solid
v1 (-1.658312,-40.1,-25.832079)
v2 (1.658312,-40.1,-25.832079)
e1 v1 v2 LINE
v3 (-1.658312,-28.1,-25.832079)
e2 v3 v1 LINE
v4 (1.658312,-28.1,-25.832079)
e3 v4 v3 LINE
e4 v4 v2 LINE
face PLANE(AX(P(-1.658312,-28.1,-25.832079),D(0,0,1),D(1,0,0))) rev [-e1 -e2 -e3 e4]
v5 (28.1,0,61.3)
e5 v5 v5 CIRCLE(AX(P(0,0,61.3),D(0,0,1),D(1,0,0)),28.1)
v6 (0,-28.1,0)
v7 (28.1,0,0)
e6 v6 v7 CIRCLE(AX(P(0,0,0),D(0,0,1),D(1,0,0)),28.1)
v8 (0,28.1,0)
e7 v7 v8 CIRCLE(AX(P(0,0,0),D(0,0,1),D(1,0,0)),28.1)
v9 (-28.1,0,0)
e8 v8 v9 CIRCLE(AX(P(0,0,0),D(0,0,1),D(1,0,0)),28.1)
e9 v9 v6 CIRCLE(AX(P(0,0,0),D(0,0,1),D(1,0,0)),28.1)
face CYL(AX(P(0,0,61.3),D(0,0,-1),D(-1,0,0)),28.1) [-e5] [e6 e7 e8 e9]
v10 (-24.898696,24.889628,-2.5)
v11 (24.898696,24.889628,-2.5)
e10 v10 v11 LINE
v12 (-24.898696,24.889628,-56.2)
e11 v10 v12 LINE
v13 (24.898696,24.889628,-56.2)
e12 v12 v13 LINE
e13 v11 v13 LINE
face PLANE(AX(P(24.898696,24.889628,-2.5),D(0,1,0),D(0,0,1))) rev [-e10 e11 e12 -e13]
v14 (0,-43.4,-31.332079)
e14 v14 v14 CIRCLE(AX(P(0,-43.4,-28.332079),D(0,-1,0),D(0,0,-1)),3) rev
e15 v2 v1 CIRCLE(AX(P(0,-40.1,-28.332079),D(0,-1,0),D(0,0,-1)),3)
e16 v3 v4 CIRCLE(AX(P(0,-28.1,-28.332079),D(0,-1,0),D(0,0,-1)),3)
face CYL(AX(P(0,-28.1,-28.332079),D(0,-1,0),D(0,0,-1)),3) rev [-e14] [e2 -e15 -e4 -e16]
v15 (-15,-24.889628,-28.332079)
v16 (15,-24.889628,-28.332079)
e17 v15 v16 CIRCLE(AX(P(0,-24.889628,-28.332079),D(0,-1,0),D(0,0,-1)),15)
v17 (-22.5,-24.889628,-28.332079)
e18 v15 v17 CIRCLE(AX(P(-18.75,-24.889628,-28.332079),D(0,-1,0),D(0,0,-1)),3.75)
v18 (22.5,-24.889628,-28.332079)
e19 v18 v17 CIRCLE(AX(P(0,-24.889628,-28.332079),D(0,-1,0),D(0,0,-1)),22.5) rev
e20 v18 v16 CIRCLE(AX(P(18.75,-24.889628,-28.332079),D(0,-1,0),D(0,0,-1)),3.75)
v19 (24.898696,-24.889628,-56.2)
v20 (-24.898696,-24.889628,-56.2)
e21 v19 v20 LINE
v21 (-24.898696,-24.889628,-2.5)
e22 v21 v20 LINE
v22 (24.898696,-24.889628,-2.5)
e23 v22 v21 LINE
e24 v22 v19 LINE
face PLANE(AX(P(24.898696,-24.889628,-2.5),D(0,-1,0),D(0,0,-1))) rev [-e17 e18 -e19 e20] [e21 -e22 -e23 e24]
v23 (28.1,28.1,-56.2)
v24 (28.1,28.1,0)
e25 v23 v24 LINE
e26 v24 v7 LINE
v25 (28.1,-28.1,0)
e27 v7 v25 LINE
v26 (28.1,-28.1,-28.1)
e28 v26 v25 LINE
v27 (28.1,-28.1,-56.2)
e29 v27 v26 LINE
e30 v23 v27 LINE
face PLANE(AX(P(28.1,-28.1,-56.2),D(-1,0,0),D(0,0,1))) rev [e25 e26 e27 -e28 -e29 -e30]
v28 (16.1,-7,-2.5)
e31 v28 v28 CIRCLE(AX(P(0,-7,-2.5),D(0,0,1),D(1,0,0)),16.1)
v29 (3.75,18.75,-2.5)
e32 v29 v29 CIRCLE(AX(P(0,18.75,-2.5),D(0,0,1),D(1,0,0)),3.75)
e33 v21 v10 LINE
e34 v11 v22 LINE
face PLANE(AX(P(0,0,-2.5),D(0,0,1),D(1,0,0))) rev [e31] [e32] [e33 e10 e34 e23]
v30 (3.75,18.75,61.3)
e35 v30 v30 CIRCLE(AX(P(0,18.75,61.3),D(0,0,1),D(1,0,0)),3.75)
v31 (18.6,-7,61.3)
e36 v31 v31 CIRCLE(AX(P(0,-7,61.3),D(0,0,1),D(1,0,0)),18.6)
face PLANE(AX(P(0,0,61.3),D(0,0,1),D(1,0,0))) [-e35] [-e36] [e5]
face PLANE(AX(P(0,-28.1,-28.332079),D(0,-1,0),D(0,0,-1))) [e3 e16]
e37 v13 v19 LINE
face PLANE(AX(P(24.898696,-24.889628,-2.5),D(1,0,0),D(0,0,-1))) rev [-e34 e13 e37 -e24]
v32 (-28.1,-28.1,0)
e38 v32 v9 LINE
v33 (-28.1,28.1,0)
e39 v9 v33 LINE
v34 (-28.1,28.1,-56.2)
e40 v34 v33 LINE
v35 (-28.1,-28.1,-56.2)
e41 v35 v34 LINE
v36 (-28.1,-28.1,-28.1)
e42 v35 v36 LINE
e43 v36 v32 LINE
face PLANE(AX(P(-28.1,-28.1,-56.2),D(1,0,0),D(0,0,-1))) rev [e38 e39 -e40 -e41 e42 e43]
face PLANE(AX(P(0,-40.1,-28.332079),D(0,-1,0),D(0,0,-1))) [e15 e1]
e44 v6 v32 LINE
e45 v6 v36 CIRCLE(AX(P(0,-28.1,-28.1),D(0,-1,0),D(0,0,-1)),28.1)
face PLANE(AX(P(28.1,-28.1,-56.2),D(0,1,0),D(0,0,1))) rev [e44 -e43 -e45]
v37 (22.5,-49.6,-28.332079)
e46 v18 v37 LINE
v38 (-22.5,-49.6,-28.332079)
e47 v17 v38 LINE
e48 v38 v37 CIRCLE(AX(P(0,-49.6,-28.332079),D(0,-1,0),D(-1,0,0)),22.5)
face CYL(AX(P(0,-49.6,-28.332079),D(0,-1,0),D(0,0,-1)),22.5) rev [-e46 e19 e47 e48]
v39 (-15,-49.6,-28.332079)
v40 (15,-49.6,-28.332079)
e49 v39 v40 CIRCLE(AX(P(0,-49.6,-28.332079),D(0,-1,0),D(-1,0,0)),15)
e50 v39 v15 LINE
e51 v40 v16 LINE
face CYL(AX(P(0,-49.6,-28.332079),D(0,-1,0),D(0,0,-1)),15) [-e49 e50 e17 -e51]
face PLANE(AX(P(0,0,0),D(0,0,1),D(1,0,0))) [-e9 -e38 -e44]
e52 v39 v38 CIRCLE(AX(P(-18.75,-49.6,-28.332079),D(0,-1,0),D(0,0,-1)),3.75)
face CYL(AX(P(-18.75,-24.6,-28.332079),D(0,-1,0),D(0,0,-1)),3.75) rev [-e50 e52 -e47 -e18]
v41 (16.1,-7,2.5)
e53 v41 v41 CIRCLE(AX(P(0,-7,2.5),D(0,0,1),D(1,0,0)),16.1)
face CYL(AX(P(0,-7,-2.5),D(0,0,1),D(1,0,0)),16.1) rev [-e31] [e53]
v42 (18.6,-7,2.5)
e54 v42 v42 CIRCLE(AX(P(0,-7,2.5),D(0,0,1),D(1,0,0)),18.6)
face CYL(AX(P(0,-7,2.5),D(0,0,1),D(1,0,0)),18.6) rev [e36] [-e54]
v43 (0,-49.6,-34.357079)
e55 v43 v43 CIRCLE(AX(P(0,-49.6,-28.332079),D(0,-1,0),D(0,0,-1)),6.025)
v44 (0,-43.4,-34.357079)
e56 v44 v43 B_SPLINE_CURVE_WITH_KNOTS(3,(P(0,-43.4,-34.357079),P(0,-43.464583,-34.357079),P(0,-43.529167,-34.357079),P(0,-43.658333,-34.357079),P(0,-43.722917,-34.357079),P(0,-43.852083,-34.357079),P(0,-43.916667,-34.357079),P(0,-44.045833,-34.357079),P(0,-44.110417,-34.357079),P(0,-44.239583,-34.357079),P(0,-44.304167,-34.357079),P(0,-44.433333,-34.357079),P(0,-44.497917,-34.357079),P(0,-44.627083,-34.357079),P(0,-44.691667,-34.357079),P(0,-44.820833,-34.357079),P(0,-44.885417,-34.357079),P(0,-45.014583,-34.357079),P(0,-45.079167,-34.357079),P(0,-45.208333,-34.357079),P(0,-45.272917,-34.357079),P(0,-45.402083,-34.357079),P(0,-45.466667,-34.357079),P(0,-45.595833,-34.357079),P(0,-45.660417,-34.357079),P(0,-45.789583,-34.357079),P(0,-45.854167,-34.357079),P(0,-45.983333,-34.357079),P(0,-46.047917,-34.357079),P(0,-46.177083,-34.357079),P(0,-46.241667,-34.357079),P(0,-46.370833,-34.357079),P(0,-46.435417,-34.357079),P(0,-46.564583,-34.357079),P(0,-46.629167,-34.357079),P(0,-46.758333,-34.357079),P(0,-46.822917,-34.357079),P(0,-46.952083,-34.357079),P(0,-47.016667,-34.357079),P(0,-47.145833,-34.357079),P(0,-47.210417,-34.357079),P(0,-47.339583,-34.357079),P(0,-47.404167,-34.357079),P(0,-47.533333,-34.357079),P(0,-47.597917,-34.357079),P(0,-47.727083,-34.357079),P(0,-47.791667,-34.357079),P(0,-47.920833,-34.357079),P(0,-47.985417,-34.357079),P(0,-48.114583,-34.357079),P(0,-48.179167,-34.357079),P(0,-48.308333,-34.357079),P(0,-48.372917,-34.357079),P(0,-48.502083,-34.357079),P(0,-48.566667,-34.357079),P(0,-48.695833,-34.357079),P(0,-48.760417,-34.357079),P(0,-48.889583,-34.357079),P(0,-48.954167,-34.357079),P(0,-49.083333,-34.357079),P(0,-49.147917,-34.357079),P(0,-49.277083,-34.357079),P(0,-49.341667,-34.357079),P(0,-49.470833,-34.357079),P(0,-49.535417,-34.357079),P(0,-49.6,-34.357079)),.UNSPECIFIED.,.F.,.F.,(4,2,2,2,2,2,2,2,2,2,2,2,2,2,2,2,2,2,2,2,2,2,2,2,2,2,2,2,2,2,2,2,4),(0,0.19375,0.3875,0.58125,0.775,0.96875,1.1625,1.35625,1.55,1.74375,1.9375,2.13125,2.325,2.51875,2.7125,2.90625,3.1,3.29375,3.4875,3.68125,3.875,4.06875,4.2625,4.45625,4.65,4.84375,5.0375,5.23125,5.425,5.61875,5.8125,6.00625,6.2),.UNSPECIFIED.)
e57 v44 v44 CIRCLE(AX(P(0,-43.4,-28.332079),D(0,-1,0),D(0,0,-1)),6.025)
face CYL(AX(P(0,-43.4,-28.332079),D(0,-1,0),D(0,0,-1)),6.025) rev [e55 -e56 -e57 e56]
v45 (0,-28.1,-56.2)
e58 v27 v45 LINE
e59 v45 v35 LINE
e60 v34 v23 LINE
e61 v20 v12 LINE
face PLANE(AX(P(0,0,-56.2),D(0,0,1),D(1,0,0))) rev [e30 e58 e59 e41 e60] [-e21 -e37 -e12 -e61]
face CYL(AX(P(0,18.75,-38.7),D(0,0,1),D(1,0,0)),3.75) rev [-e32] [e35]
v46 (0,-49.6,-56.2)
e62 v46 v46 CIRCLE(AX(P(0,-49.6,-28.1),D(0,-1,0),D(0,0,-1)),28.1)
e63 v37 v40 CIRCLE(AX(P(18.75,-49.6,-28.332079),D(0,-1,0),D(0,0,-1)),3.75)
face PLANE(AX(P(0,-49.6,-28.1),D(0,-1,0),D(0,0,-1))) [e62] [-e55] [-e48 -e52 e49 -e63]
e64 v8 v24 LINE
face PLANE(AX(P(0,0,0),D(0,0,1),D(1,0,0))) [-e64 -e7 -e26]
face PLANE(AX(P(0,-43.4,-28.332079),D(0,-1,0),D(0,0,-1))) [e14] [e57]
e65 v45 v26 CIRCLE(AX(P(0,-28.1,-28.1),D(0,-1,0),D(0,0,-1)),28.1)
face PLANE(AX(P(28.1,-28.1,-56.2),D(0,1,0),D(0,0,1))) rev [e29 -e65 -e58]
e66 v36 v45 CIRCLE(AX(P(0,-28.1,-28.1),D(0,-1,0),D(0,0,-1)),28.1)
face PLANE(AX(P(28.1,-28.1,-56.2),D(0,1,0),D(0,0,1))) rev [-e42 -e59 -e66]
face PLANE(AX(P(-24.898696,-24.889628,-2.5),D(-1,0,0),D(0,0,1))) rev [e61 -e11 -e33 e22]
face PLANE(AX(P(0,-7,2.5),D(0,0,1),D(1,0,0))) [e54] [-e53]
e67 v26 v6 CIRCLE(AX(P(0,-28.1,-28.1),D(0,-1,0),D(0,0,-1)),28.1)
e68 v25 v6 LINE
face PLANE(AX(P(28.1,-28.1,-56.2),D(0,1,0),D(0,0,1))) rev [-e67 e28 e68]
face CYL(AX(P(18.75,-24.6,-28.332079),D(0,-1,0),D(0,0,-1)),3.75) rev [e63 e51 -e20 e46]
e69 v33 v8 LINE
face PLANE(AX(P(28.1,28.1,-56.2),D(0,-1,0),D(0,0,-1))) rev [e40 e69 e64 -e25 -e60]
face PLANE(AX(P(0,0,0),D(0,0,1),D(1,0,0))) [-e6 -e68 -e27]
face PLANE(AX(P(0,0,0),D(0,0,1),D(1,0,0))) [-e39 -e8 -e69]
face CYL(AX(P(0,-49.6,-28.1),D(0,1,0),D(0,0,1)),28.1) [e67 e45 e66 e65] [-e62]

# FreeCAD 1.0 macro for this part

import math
import FreeCAD as App
import Part
import Sketcher

V = App.Vector


def add_polygon(sketch, points):
    """Adds a closed chain of lines whose ends are joined by coincident constraints."""
    first, n = sketch.GeometryCount, len(points)
    for a, b in zip(points, points[1:] + points[:1]):
        sketch.addGeometry(Part.LineSegment(App.Vector(*a, 0), App.Vector(*b, 0)), False)
    for i in range(n):
        sketch.addConstraint(Sketcher.Constraint("Coincident", first + i, 2, first + (i + 1) % n, 1))

doc = App.newDocument("Part")
body = doc.addObject("PartDesign::Body", "Body")

sketch1 = body.newObject("Sketcher::SketchObject", "Sketch")
sketch1.AttachmentSupport = (doc.getObject("XY_Plane"), [""])
sketch1.MapMode = "FlatFace"
sketch1.addGeometry(Part.Circle(V(0, 0, 0), V(0, 0, 1), 28.1), False)
sketch1.addConstraint([
    Sketcher.Constraint("Coincident", 0, 3, -1, 1),
    Sketcher.Constraint("Diameter", 0, 56.2),
])
pad1 = body.newObject("PartDesign::Pad", "Pad")
pad1.Profile = sketch1
pad1.Length = 61.3

sketch2 = body.newObject("Sketcher::SketchObject", "Sketch001")
sketch2.AttachmentSupport = (doc.getObject("XY_Plane"), [""])
sketch2.MapMode = "FlatFace"
sketch2.AttachmentOffset = App.Placement(V(0, 0, 61.3), App.Rotation())
sketch2.addGeometry(Part.Circle(V(0, -7, 0), V(0, 0, 1), 18.6), False)
sketch2.addConstraint([
    Sketcher.Constraint("PointOnObject", 0, 3, -2),
    Sketcher.Constraint("Diameter", 0, 37.2),
    Sketcher.Constraint("DistanceY", 0, 3, -1, 1, 7.0),
])
pocket1 = body.newObject("PartDesign::Pocket", "Pocket")
pocket1.Profile = sketch2
pocket1.Length = 58.8

sketch3 = body.newObject("Sketcher::SketchObject", "Sketch002")
sketch3.AttachmentSupport = (doc.getObject("XY_Plane"), [""])
sketch3.MapMode = "FlatFace"
add_polygon(sketch3, [(28.1, 28.1), (28.1, -28.1), (-28.1, -28.1), (-28.1, 28.1)])
sketch3.addConstraint([
    Sketcher.Constraint("Vertical", 0),
    Sketcher.Constraint("Horizontal", 1),
    Sketcher.Constraint("Vertical", 2),
    Sketcher.Constraint("Horizontal", 3),
    Sketcher.Constraint("Symmetric", 0, 2, 2, 2, -1, 1),
    Sketcher.Constraint("Equal", 3, 0),
    Sketcher.Constraint("DistanceX", 1, 2, 1, 1, 56.2),
])
pad2 = body.newObject("PartDesign::Pad", "Pad001")
pad2.Profile = sketch3
pad2.Length = 56.2
pad2.Reversed = True

sketch4 = body.newObject("Sketcher::SketchObject", "Sketch003")
sketch4.AttachmentSupport = (doc.getObject("XY_Plane"), [""])
sketch4.MapMode = "FlatFace"
sketch4.AttachmentOffset = App.Placement(V(0, 0, 2.5), App.Rotation())
sketch4.addGeometry(Part.Circle(V(0, -7, 0), V(0, 0, 1), 16.1), False)
sketch4.addConstraint([
    Sketcher.Constraint("PointOnObject", 0, 3, -2),
    Sketcher.Constraint("Diameter", 0, 32.2),
    Sketcher.Constraint("DistanceY", 0, 3, -1, 1, 7.0),
])
pocket2 = body.newObject("PartDesign::Pocket", "Pocket001")
pocket2.Profile = sketch4
pocket2.Length = 5

sketch5 = body.newObject("Sketcher::SketchObject", "Sketch004")
sketch5.AttachmentSupport = (doc.getObject("XY_Plane"), [""])
sketch5.MapMode = "FlatFace"
sketch5.AttachmentOffset = App.Placement(V(0, 0, -56.2), App.Rotation())
add_polygon(sketch5, [(24.898696, 24.889628), (24.898696, -24.889628), (-24.898696, -24.889628), (-24.898696, 24.889628)])
sketch5.addConstraint([
    Sketcher.Constraint("Vertical", 0),
    Sketcher.Constraint("Horizontal", 1),
    Sketcher.Constraint("Vertical", 2),
    Sketcher.Constraint("Horizontal", 3),
    Sketcher.Constraint("Symmetric", 0, 2, 2, 2, -1, 1),
    Sketcher.Constraint("DistanceX", 1, 2, 1, 1, 49.797391),
    Sketcher.Constraint("DistanceY", 0, 2, 0, 1, 49.779255),
])
pocket3 = body.newObject("PartDesign::Pocket", "Pocket002")
pocket3.Profile = sketch5
pocket3.Length = 53.7
pocket3.Reversed = True

sketch6 = body.newObject("Sketcher::SketchObject", "Sketch005")
sketch6.AttachmentSupport = (doc.getObject("XZ_Plane"), [""])
sketch6.MapMode = "FlatFace"
sketch6.AttachmentOffset = App.Placement(V(0, 0, 28.1), App.Rotation())
sketch6.addGeometry(Part.Circle(V(0, -28.1, 0), V(0, 0, 1), 28.1), False)
sketch6.addConstraint([
    Sketcher.Constraint("PointOnObject", 0, 3, -2),
    Sketcher.Constraint("Diameter", 0, 56.2),
    Sketcher.Constraint("DistanceY", 0, 3, -1, 1, 28.1),
])
pad3 = body.newObject("PartDesign::Pad", "Pad002")
pad3.Profile = sketch6
pad3.Length = 21.5

sketch7 = body.newObject("Sketcher::SketchObject", "Sketch006")
sketch7.AttachmentSupport = (doc.getObject("XZ_Plane"), [""])
sketch7.MapMode = "FlatFace"
sketch7.AttachmentOffset = App.Placement(V(0, 0, 49.6), App.Rotation())
sketch7.addGeometry([
    Part.LineSegment(V(1.658312, -25.832079, 0), V(-1.658312, -25.832079, 0)),
    Part.ArcOfCircle(Part.Circle(V(0, -28.332079, 0), V(0, 0, 1), 3), math.radians(123.55731), math.radians(416.44269)),
], False)
sketch7.addConstraint([
    Sketcher.Constraint("Coincident", 0, 1, 1, 2),
    Sketcher.Constraint("Coincident", 1, 1, 0, 2),
    Sketcher.Constraint("Horizontal", 0),
    Sketcher.Constraint("PointOnObject", 1, 3, -2),
    Sketcher.Constraint("Radius", 1, 3.0),
    Sketcher.Constraint("DistanceY", 1, 3, 0, 1, 2.5),
    Sketcher.Constraint("DistanceY", 1, 3, -1, 1, 28.332079),
])
pocket4 = body.newObject("PartDesign::Pocket", "Pocket003")
pocket4.Profile = sketch7
pocket4.Length = 21.5

sketch8 = body.newObject("Sketcher::SketchObject", "Sketch007")
sketch8.AttachmentSupport = (doc.getObject("XZ_Plane"), [""])
sketch8.MapMode = "FlatFace"
sketch8.AttachmentOffset = App.Placement(V(0, 0, 49.6), App.Rotation())
sketch8.addGeometry(Part.Circle(V(0, -28.332079, 0), V(0, 0, 1), 3), False)
sketch8.addConstraint([
    Sketcher.Constraint("PointOnObject", 0, 3, -2),
    Sketcher.Constraint("Diameter", 0, 6.0),
    Sketcher.Constraint("DistanceY", 0, 3, -1, 1, 28.332079),
])
pocket5 = body.newObject("PartDesign::Pocket", "Pocket004")
pocket5.Profile = sketch8
pocket5.Length = 9.5

sketch9 = body.newObject("Sketcher::SketchObject", "Sketch008")
sketch9.AttachmentSupport = (doc.getObject("XZ_Plane"), [""])
sketch9.MapMode = "FlatFace"
sketch9.AttachmentOffset = App.Placement(V(0, 0, 49.6), App.Rotation())
sketch9.addGeometry(Part.Circle(V(0, -28.332079, 0), V(0, 0, 1), 6.025), False)
sketch9.addConstraint([
    Sketcher.Constraint("PointOnObject", 0, 3, -2),
    Sketcher.Constraint("Diameter", 0, 12.05),
    Sketcher.Constraint("DistanceY", 0, 3, -1, 1, 28.332079),
])
pocket6 = body.newObject("PartDesign::Pocket", "Pocket005")
pocket6.Profile = sketch9
pocket6.Length = 6.2

sketch10 = body.newObject("Sketcher::SketchObject", "Sketch009")
sketch10.AttachmentSupport = (doc.getObject("XY_Plane"), [""])
sketch10.MapMode = "FlatFace"
sketch10.AttachmentOffset = App.Placement(V(0, 0, -28.332079), App.Rotation())
add_polygon(sketch10, [(-22.5, -49.6), (-15, -49.6), (-15, -20), (-22.5, -20)])
sketch10.addConstraint([
    Sketcher.Constraint("Horizontal", 0),
    Sketcher.Constraint("Vertical", 1),
    Sketcher.Constraint("Horizontal", 2),
    Sketcher.Constraint("Vertical", 3),
    Sketcher.Constraint("DistanceX", 0, 1, 0, 2, 7.5),
    Sketcher.Constraint("DistanceY", 1, 1, 1, 2, 29.6),
    Sketcher.Constraint("DistanceX", 0, 2, -1, 1, 15.0),
    Sketcher.Constraint("DistanceY", 1, 2, -1, 1, 20.0),
])

sketch11 = body.newObject("Sketcher::SketchObject", "Sketch010")
sketch11.AttachmentSupport = (doc.getObject("XZ_Plane"), [""])
sketch11.MapMode = "FlatFace"
sketch11.AttachmentOffset = App.Placement(V(0, 0, 49.6), App.Rotation())
sketch11.addGeometry(Part.ArcOfCircle(Part.Circle(V(0, -28.332079, 0), V(0, 0, 1), 15), math.radians(180), math.radians(360)), False)
sketch11.addConstraint([
    Sketcher.Constraint("Symmetric", 0, 1, 0, 2, -2),
    Sketcher.Constraint("Radius", 0, 15.0),
    Sketcher.Constraint("DistanceY", 0, 3, -1, 1, 28.332079),
    Sketcher.Constraint("DistanceY", 0, 1, -1, 1, 28.332079),
])
doc.recompute()

subtractivepipe = body.newObject("PartDesign::SubtractivePipe", "SubtractivePipe")
subtractivepipe.Profile = sketch10
subtractivepipe.Spine = (sketch11, ["Edge1"])

sketch12 = body.newObject("Sketcher::SketchObject", "Sketch011")
sketch12.AttachmentSupport = (doc.getObject("XY_Plane"), [""])
sketch12.MapMode = "FlatFace"
sketch12.AttachmentOffset = App.Placement(V(0, 0, 61.3), App.Rotation())
sketch12.addGeometry(Part.Circle(V(0, 18.75, 0), V(0, 0, 1), 3.75), False)
sketch12.addConstraint([
    Sketcher.Constraint("PointOnObject", 0, 3, -2),
    Sketcher.Constraint("Diameter", 0, 7.5),
    Sketcher.Constraint("DistanceY", -1, 1, 0, 3, 18.75),
])
pocket7 = body.newObject("PartDesign::Pocket", "Pocket006")
pocket7.Profile = sketch12
pocket7.Length = 100

sketch13 = body.newObject("Sketcher::SketchObject", "Sketch012")
sketch13.AttachmentSupport = (doc.getObject("XZ_Plane"), [""])
sketch13.MapMode = "FlatFace"
sketch13.AttachmentOffset = App.Placement(V(0, 0, 49.6), App.Rotation())
sketch13.addGeometry([
    Part.Circle(V(18.75, -28.332079, 0), V(0, 0, 1), 3.75),
    Part.Circle(V(-18.75, -28.332079, 0), V(0, 0, 1), 3.75),
], False)
sketch13.addConstraint([
    Sketcher.Constraint("Equal", 0, 1),
    Sketcher.Constraint("Symmetric", 0, 3, 1, 3, -2),
    Sketcher.Constraint("Diameter", 0, 7.5),
    Sketcher.Constraint("DistanceX", 1, 3, 0, 3, 37.5),
    Sketcher.Constraint("DistanceY", 0, 3, -1, 1, 28.332079),
])
pocket8 = body.newObject("PartDesign::Pocket", "Pocket007")
pocket8.Profile = sketch13
pocket8.Length = 25

doc.recompute()
